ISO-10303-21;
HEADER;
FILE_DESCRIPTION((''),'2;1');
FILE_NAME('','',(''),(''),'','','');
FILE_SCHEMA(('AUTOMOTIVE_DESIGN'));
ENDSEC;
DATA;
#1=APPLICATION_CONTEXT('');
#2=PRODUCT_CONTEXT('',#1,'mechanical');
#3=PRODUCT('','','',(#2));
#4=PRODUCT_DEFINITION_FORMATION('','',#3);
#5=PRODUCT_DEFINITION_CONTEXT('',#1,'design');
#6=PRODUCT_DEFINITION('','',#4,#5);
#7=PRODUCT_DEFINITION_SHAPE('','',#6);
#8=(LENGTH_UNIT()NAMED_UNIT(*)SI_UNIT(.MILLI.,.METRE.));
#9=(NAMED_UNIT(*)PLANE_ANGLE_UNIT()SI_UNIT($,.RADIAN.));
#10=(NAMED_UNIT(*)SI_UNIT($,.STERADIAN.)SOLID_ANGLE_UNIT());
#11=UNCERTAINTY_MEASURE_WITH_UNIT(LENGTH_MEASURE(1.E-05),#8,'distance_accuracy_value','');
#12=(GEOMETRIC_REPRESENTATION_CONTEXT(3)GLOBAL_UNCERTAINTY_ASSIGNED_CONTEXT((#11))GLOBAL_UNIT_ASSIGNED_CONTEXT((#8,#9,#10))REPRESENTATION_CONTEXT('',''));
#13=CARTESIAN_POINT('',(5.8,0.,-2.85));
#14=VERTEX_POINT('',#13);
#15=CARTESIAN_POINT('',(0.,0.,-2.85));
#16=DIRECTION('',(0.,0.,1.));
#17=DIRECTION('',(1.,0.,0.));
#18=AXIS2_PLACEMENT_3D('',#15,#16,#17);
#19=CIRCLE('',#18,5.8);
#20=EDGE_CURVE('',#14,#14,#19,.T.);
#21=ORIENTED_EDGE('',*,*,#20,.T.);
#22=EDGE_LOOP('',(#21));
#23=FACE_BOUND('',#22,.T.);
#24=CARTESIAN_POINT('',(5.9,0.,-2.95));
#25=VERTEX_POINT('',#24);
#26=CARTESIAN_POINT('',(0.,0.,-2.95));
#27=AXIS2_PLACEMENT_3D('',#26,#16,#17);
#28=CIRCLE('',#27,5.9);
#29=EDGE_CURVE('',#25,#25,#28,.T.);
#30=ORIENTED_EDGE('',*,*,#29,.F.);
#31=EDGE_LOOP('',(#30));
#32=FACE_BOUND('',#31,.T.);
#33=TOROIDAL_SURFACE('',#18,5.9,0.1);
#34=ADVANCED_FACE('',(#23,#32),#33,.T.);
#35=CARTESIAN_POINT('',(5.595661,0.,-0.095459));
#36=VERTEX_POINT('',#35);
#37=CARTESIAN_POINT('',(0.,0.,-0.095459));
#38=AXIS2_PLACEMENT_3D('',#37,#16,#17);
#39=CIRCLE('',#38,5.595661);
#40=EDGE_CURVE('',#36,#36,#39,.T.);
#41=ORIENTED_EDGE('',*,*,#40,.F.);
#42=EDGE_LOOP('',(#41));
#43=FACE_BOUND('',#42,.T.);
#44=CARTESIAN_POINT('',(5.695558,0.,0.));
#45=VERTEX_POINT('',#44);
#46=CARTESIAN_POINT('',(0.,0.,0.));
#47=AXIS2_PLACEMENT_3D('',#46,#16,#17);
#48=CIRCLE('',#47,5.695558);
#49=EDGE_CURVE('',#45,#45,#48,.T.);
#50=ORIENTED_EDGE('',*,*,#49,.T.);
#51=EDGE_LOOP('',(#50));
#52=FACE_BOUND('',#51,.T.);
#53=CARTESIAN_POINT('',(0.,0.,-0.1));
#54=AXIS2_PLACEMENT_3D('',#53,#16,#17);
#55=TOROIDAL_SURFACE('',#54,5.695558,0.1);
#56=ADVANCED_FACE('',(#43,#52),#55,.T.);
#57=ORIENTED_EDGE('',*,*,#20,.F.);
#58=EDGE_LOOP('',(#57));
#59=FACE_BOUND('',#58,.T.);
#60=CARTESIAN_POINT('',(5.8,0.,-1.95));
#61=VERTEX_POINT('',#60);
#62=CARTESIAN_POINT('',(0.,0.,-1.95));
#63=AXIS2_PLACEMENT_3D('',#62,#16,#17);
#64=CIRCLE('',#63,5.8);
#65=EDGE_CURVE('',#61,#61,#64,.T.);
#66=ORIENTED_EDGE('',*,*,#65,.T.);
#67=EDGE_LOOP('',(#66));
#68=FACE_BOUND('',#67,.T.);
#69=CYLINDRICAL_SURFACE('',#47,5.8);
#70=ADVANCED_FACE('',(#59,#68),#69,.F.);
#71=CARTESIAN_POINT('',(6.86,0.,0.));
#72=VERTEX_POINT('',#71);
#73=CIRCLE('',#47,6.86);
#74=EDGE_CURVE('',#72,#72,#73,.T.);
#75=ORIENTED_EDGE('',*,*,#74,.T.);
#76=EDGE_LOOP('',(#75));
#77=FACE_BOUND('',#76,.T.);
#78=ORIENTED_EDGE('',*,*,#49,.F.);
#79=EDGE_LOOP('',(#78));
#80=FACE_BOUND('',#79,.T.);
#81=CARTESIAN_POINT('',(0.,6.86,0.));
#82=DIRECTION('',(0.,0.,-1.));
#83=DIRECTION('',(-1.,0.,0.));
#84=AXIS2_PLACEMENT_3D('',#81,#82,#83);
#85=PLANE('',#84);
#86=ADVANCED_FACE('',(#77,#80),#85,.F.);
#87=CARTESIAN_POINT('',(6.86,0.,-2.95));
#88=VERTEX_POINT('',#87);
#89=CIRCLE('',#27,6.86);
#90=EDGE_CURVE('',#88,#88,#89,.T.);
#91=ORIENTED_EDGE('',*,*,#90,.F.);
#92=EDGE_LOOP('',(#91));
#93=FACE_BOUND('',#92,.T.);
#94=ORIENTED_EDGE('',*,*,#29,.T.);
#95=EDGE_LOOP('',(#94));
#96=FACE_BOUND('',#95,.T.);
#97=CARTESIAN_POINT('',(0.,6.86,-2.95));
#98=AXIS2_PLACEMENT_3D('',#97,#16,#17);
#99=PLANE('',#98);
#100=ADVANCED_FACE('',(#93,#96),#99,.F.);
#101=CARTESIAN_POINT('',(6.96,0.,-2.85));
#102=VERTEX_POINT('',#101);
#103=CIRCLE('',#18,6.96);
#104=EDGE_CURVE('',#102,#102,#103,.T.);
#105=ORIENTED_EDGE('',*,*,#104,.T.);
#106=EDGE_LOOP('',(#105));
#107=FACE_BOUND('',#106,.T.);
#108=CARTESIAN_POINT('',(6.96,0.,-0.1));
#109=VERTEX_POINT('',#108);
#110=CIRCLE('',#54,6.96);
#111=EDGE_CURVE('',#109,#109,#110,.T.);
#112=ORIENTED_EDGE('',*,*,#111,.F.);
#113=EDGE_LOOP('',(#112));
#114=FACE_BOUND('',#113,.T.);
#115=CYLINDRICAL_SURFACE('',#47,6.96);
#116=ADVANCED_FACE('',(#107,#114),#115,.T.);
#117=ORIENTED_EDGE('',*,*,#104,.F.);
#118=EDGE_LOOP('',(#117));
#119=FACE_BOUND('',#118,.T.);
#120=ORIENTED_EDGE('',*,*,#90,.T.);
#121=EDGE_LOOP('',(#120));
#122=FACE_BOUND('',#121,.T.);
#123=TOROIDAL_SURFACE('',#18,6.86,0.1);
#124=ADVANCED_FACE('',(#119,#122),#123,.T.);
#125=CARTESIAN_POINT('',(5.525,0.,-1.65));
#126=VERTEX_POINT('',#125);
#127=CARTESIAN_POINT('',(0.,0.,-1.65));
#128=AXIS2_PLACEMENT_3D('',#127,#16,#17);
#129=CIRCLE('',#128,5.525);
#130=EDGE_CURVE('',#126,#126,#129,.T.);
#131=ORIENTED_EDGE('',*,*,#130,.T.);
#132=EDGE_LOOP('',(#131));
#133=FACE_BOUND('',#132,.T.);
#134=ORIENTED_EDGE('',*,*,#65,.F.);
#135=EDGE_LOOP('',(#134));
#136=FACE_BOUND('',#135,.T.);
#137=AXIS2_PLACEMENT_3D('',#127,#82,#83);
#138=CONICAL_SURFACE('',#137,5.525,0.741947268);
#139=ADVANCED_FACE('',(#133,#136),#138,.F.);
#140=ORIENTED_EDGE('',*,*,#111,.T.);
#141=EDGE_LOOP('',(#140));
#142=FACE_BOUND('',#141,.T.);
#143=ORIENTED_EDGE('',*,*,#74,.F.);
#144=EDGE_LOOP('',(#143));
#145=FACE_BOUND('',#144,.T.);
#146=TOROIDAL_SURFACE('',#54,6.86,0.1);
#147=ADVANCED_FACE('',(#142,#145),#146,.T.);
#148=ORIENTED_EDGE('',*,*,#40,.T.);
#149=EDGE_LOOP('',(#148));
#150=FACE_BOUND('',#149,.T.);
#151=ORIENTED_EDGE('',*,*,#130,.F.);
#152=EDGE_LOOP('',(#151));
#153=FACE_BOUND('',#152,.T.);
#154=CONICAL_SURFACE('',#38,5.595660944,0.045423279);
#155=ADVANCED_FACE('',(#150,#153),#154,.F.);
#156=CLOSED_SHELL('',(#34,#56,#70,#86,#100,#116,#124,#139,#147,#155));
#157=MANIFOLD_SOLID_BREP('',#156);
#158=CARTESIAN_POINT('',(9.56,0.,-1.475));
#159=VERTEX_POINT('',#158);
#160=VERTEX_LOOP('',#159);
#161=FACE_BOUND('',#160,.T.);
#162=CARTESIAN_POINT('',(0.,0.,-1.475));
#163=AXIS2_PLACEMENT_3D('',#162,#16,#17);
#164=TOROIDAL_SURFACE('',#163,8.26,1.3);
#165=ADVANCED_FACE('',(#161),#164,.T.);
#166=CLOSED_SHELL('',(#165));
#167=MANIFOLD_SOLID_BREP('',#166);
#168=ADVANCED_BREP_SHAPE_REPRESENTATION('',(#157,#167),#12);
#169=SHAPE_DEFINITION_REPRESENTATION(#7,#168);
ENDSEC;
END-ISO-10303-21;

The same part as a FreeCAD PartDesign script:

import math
import FreeCAD as App
import Part
import Sketcher

V = App.Vector
Q = App.Units.Quantity

doc = App.newDocument("Part")
body = doc.addObject("PartDesign::Body", "Body")

sketch1 = body.newObject("Sketcher::SketchObject", "Sketch")
sketch1.AttachmentSupport = (doc.getObject("YZ_Plane"), [""])
sketch1.MapMode = "FlatFace"
sketch1.addGeometry([
    Part.LineSegment(V(6.96, -2.85, 0), V(6.96, -0.1, 0)),
    Part.ArcOfCircle(Part.Circle(V(6.86, -0.1, 0), V(0, 0, 1), 0.1), math.radians(0), math.radians(90)),
    Part.LineSegment(V(6.86, 0, 0), V(5.7, 0, 0)),
    Part.ArcOfCircle(Part.Circle(V(5.7, -0.1, 0), V(0, 0, 1), 0.1), math.radians(90), math.radians(177)),
    Part.LineSegment(V(5.6, -0.1, 0), V(5.53, -1.65, 0)),
    Part.LineSegment(V(5.53, -1.65, 0), V(5.8, -1.95, 0)),
    Part.LineSegment(V(5.8, -1.95, 0), V(5.8, -2.85, 0)),
    Part.ArcOfCircle(Part.Circle(V(5.9, -2.85, 0), V(0, 0, 1), 0.1), math.radians(180), math.radians(270)),
    Part.LineSegment(V(5.9, -2.95, 0), V(6.86, -2.95, 0)),
    Part.ArcOfCircle(Part.Circle(V(6.86, -2.85, 0), V(0, 0, 1), 0.1), math.radians(-90), math.radians(0)),
], False)
sketch1.addConstraint([
    Sketcher.Constraint("Tangent", 0, 2, 1, 1),
    Sketcher.Constraint("Tangent", 1, 2, 2, 1),
    Sketcher.Constraint("Tangent", 2, 2, 3, 1),
    Sketcher.Constraint("Tangent", 3, 2, 4, 1),
    Sketcher.Constraint("Coincident", 4, 2, 5, 1),
    Sketcher.Constraint("Coincident", 5, 2, 6, 1),
    Sketcher.Constraint("Tangent", 6, 2, 7, 1),
    Sketcher.Constraint("Tangent", 7, 2, 8, 1),
    Sketcher.Constraint("Tangent", 8, 2, 9, 1),
    Sketcher.Constraint("Tangent", 9, 2, 0, 1),
    Sketcher.Constraint("Vertical", 0),
    Sketcher.Constraint("Horizontal", 2),
    Sketcher.Constraint("Vertical", 6),
    Sketcher.Constraint("Horizontal", 8),
    Sketcher.Constraint("Equal", 1, 3),
    Sketcher.Constraint("Equal", 3, 7),
    Sketcher.Constraint("Equal", 7, 9),
    Sketcher.Constraint("PointOnObject", 1, 2, -1),
    Sketcher.Constraint("Radius", 1, Q("0.1 mm")),
    Sketcher.Constraint("DistanceY", 6, 2, 6, 1, Q("0.9 mm")),
    Sketcher.Constraint("DistanceX", 8, 1, 8, 2, Q("0.96 mm")),
    Sketcher.Constraint("DistanceY", 0, 1, 0, 2, Q("2.75 mm")),
    Sketcher.Constraint("DistanceX", -1, 1, 7, 3, Q("5.9 mm")),
    Sketcher.Constraint("DistanceY", 7, 3, 4, 2, Q("1.2 mm")),
    Sketcher.Constraint("DistanceX", -1, 1, 4, 2, Q("5.525 mm")),
    Sketcher.Constraint("DistanceX", 2, 2, 2, 1, Q("1.164442 mm")),
])
revolution = body.newObject("PartDesign::Revolution", "Revolution")
revolution.Profile = sketch1
revolution.ReferenceAxis = (sketch1, ["V_Axis"])
revolution.Angle = 360
body2 = doc.addObject("PartDesign::Body", "Body001")

sketch2 = body2.newObject("Sketcher::SketchObject", "Sketch001")
sketch2.AttachmentSupport = (doc.getObject("YZ_Plane001"), [""])
sketch2.MapMode = "FlatFace"
sketch2.addGeometry(Part.Circle(V(8.3, -1.5, 0), V(0, 0, 1), 1.3), False)
sketch2.addConstraint([
    Sketcher.Constraint("Diameter", 0, Q("2.6 mm")),
    Sketcher.Constraint("DistanceX", -1, 1, 0, 3, Q("8.26 mm")),
    Sketcher.Constraint("DistanceY", 0, 3, -1, 1, Q("1.475 mm")),
])
revolution2 = body2.newObject("PartDesign::Revolution", "Revolution001")
revolution2.Profile = sketch2
revolution2.ReferenceAxis = (sketch2, ["V_Axis"])
revolution2.Angle = 360

doc.recompute()
